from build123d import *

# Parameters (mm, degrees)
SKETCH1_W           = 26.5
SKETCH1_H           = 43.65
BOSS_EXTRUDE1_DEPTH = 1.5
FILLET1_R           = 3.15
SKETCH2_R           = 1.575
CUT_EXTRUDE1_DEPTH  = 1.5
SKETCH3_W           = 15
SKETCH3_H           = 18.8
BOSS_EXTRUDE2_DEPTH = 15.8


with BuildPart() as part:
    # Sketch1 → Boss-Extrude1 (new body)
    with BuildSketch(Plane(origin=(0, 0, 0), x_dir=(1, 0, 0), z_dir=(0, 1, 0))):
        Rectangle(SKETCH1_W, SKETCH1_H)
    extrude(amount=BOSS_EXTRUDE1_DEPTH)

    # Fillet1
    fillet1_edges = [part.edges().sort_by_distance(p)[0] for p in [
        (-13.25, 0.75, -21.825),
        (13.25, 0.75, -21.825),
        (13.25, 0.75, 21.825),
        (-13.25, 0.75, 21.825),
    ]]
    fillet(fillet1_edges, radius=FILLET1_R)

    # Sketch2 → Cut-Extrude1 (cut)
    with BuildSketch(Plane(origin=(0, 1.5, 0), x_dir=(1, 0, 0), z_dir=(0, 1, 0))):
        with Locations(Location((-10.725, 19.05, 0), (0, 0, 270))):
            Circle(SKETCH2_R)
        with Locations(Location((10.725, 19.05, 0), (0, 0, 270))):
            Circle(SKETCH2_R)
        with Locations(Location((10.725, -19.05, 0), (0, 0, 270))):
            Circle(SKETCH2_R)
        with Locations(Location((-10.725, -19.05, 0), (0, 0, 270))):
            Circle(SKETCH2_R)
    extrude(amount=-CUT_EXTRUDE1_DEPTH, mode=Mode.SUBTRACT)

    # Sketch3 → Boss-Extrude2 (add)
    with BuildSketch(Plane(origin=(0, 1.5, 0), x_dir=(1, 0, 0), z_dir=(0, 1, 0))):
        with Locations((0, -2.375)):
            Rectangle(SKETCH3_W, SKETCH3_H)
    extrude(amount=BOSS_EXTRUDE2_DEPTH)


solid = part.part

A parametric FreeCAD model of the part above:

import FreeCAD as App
import Part
import Sketcher


def edges_at(feature, points):
    """Names of the edges that pass closest to the given points."""
    edges = feature.Shape.Edges
    near = lambda p: min(range(len(edges)), key=lambda i: edges[i].distToShape(Part.Vertex(*p))[0])
    return sorted({f"Edge{near(p) + 1}" for p in points})

doc = App.newDocument("Part")
params = doc.addObject("Spreadsheet::Sheet", "Params")
for row, (alias, value) in enumerate([
    ("sketch1_width", "26.5 mm"),
    ("sketch1_height", "43.65 mm"),
    ("pad1_length", "1.5 mm"),
    ("fillet_radius", "3.15 mm"),
    ("sketch2_diameter", "3.15 mm"),
    ("pocket1_length", "1.5 mm"),
    ("sketch3_width", "15 mm"),
    ("sketch3_height", "18.8 mm"),
    ("pad2_length", "15.8 mm"),
], start=1):
    params.set(f"A{row}", alias)
    params.set(f"B{row}", "=" + value)
    params.setAlias(f"B{row}", alias)

body = doc.addObject("PartDesign::Body", "Body")

# Sketch on XZ plane
sketch1 = body.newObject("Sketcher::SketchObject", "Sketch")
sketch1.AttachmentSupport = (doc.getObject("XZ_Plane"), [""])
sketch1.MapMode = "FlatFace"
sketch1.addGeometry([
    Part.LineSegment(App.Vector(-13, -22, 0), App.Vector(-13, 22, 0)),
    Part.LineSegment(App.Vector(-13, 22, 0), App.Vector(13, 22, 0)),
    Part.LineSegment(App.Vector(13, 22, 0), App.Vector(13, -22, 0)),
    Part.LineSegment(App.Vector(13, -22, 0), App.Vector(-13, -22, 0)),
], False)
sketch1.addConstraint([
    Sketcher.Constraint("Coincident", 0, 2, 1, 1),
    Sketcher.Constraint("Coincident", 1, 2, 2, 1),
    Sketcher.Constraint("Coincident", 2, 2, 3, 1),
    Sketcher.Constraint("Coincident", 3, 2, 0, 1),
    Sketcher.Constraint("Vertical", 0),
    Sketcher.Constraint("Horizontal", 1),
    Sketcher.Constraint("Vertical", 2),
    Sketcher.Constraint("Horizontal", 3),
    Sketcher.Constraint("Symmetric", 0, 2, 2, 2, -1, 1),
    Sketcher.Constraint("DistanceX", 1, 1, 1, 2, 26.5),
    Sketcher.Constraint("DistanceY", 0, 1, 0, 2, 43.65),
])
sketch1.setExpression("Constraints[9]", "Params.sketch1_width")
sketch1.setExpression("Constraints[10]", "Params.sketch1_height")
pad1 = body.newObject("PartDesign::Pad", "Pad")
pad1.Profile = sketch1
pad1.setExpression("Length", "Params.pad1_length")
pad1.Reversed = True
doc.recompute()

fillet = body.newObject("PartDesign::Fillet", "Fillet")
fillet.Base = (pad1, edges_at(pad1, [
    (-13.25, 0.75, -21.825),
    (13.25, 0.75, -21.825),
    (13.25, 0.75, 21.825),
    (-13.25, 0.75, 21.825),
]))
fillet.setExpression("Radius", "Params.fillet_radius")

# Sketch on XZ plane
sketch2 = body.newObject("Sketcher::SketchObject", "Sketch001")
sketch2.AttachmentSupport = (doc.getObject("XZ_Plane"), [""])
sketch2.MapMode = "FlatFace"
sketch2.AttachmentOffset = App.Placement(App.Vector(0, 0, -1.5), App.Rotation())
sketch2.addGeometry([
    Part.Circle(App.Vector(-10.7, -19.1, 0), App.Vector(0, 0, 1), 1.6),
    Part.Circle(App.Vector(10.7, -19.1, 0), App.Vector(0, 0, 1), 1.6),
    Part.Circle(App.Vector(10.7, 19.1, 0), App.Vector(0, 0, 1), 1.6),
    Part.Circle(App.Vector(-10.7, 19.1, 0), App.Vector(0, 0, 1), 1.6),
], False)
sketch2.addConstraint([
    Sketcher.Constraint("Equal", 0, 1),
    Sketcher.Constraint("Equal", 1, 2),
    Sketcher.Constraint("Equal", 2, 3),
    Sketcher.Constraint("Symmetric", 0, 3, 2, 3, -1, 1),
    Sketcher.Constraint("Symmetric", 1, 3, 3, 3, -1, 1),
    Sketcher.Constraint("Symmetric", 0, 3, 1, 3, -2),
    Sketcher.Constraint("Diameter", 0, 3.15),
    Sketcher.Constraint("DistanceY", 1, 3, 2, 3, 38.1),
    Sketcher.Constraint("DistanceX", 0, 3, 1, 3, 21.45),
])
sketch2.setExpression("Constraints[6]", "Params.sketch2_diameter")
pocket1 = body.newObject("PartDesign::Pocket", "Pocket")
pocket1.Profile = sketch2
pocket1.setExpression("Length", "Params.pocket1_length")
pocket1.Reversed = True

# Sketch on XZ plane
sketch3 = body.newObject("Sketcher::SketchObject", "Sketch002")
sketch3.AttachmentSupport = (doc.getObject("XZ_Plane"), [""])
sketch3.MapMode = "FlatFace"
sketch3.AttachmentOffset = App.Placement(App.Vector(0, 0, -1.5), App.Rotation())
sketch3.addGeometry([
    Part.LineSegment(App.Vector(-8, -7, 0), App.Vector(-8, 12, 0)),
    Part.LineSegment(App.Vector(-8, 12, 0), App.Vector(8, 12, 0)),
    Part.LineSegment(App.Vector(8, 12, 0), App.Vector(8, -7, 0)),
    Part.LineSegment(App.Vector(8, -7, 0), App.Vector(-8, -7, 0)),
], False)
sketch3.addConstraint([
    Sketcher.Constraint("Coincident", 0, 2, 1, 1),
    Sketcher.Constraint("Coincident", 1, 2, 2, 1),
    Sketcher.Constraint("Coincident", 2, 2, 3, 1),
    Sketcher.Constraint("Coincident", 3, 2, 0, 1),
    Sketcher.Constraint("Vertical", 0),
    Sketcher.Constraint("Horizontal", 1),
    Sketcher.Constraint("Vertical", 2),
    Sketcher.Constraint("Horizontal", 3),
    Sketcher.Constraint("DistanceX", 1, 1, 1, 2, 15.0),
    Sketcher.Constraint("DistanceY", 0, 1, 0, 2, 18.8),
    Sketcher.Constraint("DistanceX", 0, 2, -1, 1, 7.5),
    Sketcher.Constraint("DistanceY", -1, 1, 0, 2, 11.775),
])
sketch3.setExpression("Constraints[8]", "Params.sketch3_width")
sketch3.setExpression("Constraints[9]", "Params.sketch3_height")
pad2 = body.newObject("PartDesign::Pad", "Pad001")
pad2.Profile = sketch3
pad2.setExpression("Length", "Params.pad2_length")
pad2.Reversed = True

doc.recompute()
